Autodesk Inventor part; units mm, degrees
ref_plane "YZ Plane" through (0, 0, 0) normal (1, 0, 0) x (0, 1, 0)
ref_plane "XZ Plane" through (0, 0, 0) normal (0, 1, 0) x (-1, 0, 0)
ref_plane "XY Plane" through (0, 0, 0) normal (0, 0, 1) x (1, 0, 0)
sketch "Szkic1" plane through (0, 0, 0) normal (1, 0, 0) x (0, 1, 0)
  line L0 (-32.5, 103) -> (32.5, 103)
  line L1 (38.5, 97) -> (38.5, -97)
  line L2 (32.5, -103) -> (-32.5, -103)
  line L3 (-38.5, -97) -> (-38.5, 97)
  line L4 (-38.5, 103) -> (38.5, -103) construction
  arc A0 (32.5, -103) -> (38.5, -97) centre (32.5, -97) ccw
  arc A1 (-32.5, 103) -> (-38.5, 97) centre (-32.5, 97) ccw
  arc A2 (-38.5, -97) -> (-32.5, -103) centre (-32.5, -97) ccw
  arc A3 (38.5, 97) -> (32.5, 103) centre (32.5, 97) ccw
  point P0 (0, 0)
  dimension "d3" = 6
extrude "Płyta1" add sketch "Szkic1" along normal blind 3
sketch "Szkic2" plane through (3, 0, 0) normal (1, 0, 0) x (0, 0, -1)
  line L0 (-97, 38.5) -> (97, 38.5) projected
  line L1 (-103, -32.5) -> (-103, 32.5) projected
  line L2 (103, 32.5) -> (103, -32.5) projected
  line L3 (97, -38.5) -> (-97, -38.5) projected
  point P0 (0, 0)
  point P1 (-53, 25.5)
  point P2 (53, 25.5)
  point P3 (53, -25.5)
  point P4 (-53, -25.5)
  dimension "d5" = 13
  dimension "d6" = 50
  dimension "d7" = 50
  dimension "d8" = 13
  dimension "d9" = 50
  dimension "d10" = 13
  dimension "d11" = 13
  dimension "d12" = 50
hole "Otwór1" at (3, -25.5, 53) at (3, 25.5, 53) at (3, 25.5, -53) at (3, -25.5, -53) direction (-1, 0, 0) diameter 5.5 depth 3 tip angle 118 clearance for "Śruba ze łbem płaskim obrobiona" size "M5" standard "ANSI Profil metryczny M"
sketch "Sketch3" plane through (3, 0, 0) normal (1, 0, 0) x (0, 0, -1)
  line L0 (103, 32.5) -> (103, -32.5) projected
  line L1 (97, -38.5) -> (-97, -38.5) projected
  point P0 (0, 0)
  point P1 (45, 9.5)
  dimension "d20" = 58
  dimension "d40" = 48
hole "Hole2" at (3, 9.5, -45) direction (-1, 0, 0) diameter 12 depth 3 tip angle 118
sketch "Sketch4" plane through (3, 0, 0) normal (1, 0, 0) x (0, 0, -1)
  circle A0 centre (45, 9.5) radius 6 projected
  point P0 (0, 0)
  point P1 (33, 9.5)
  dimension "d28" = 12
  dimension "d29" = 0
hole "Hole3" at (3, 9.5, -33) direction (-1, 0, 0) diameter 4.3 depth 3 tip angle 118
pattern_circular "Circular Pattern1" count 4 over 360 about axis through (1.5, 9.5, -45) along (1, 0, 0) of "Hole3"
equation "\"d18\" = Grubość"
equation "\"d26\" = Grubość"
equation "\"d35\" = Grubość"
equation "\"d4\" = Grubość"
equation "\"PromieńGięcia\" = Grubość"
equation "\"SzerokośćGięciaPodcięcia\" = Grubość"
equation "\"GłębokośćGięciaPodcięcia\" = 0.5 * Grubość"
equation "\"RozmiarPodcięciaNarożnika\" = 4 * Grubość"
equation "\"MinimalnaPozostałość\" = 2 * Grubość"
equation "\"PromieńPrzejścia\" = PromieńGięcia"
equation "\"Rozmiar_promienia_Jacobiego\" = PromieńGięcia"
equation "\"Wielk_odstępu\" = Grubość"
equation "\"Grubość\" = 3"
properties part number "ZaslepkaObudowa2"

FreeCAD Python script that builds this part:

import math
import FreeCAD as App
import Part
import Sketcher
from FreeCAD import Vector

doc = App.newDocument("Part")
body = doc.addObject("PartDesign::Body", "Body")

sketch1 = body.newObject("Sketcher::SketchObject", "Sketch")
sketch1.AttachmentSupport = (doc.getObject("YZ_Plane"), [""])
sketch1.MapMode = "FlatFace"
sketch1.addGeometry([
    Part.LineSegment(Vector(32, 103, 0), Vector(-32, 103, 0)),
    Part.ArcOfCircle(Part.Circle(Vector(-32, 97, 0), Vector(0, 0, 1), 6), math.radians(90), math.radians(180)),
    Part.LineSegment(Vector(-38, 97, 0), Vector(-38, -97, 0)),
    Part.ArcOfCircle(Part.Circle(Vector(-32, -97, 0), Vector(0, 0, 1), 6), math.radians(180), math.radians(270)),
    Part.LineSegment(Vector(-32, -103, 0), Vector(32, -103, 0)),
    Part.ArcOfCircle(Part.Circle(Vector(32, -97, 0), Vector(0, 0, 1), 6), math.radians(-90), math.radians(0)),
    Part.LineSegment(Vector(38, -97, 0), Vector(38, 97, 0)),
    Part.ArcOfCircle(Part.Circle(Vector(32, 97, 0), Vector(0, 0, 1), 6), math.radians(0), math.radians(90)),
], False)
sketch1.addConstraint([
    Sketcher.Constraint("Tangent", 0, 2, 1, 1),
    Sketcher.Constraint("Tangent", 1, 2, 2, 1),
    Sketcher.Constraint("Tangent", 2, 2, 3, 1),
    Sketcher.Constraint("Tangent", 3, 2, 4, 1),
    Sketcher.Constraint("Tangent", 4, 2, 5, 1),
    Sketcher.Constraint("Tangent", 5, 2, 6, 1),
    Sketcher.Constraint("Tangent", 6, 2, 7, 1),
    Sketcher.Constraint("Tangent", 7, 2, 0, 1),
    Sketcher.Constraint("Horizontal", 0),
    Sketcher.Constraint("Vertical", 2),
    Sketcher.Constraint("Horizontal", 4),
    Sketcher.Constraint("Vertical", 6),
    Sketcher.Constraint("Equal", 1, 3),
    Sketcher.Constraint("Equal", 3, 5),
    Sketcher.Constraint("Equal", 5, 7),
    Sketcher.Constraint("Symmetric", 1, 3, 5, 3, -1, 1),
    Sketcher.Constraint("Radius", 1, 6.0),
    Sketcher.Constraint("DistanceX", 0, 2, 0, 1, 65.0),
    Sketcher.Constraint("DistanceY", 2, 2, 2, 1, 194.0),
])
pad1 = body.newObject("PartDesign::Pad", "Pad")
pad1.Profile = sketch1
pad1.Length = 3

sketch2 = body.newObject("Sketcher::SketchObject", "Sketch001")
sketch2.AttachmentSupport = (doc.getObject("YZ_Plane"), [""])
sketch2.MapMode = "FlatFace"
sketch2.AttachmentOffset = App.Placement(Vector(0, 0, 3), App.Rotation())
sketch2.addGeometry([
    Part.Circle(Vector(-25.5, 53, 0), Vector(0, 0, 1), 2.8),
    Part.Circle(Vector(25.5, 53, 0), Vector(0, 0, 1), 2.8),
    Part.Circle(Vector(25.5, -53, 0), Vector(0, 0, 1), 2.8),
    Part.Circle(Vector(-25.5, -53, 0), Vector(0, 0, 1), 2.8),
], False)
sketch2.addConstraint([
    Sketcher.Constraint("Equal", 0, 1),
    Sketcher.Constraint("Equal", 1, 2),
    Sketcher.Constraint("Equal", 2, 3),
    Sketcher.Constraint("Symmetric", 0, 3, 2, 3, -1, 1),
    Sketcher.Constraint("Symmetric", 1, 3, 3, 3, -1, 1),
    Sketcher.Constraint("Symmetric", 0, 3, 1, 3, -2),
    Sketcher.Constraint("Diameter", 0, 5.5),
    Sketcher.Constraint("DistanceY", -1, 1, 0, 3, 53.0),
    Sketcher.Constraint("DistanceX", 0, 3, 1, 3, 51.0),
])
doc.recompute()
hole = body.newObject("PartDesign::Hole", "Hole")
hole.Profile = sketch2
hole.ThreadType = "None"
hole.Diameter = 5.5
hole.DepthType = "Dimension"
hole.Depth = 3
hole.DrillPoint = "Angled"
hole.DrillPointAngle = 118

sketch3 = body.newObject("Sketcher::SketchObject", "Sketch002")
sketch3.AttachmentSupport = (doc.getObject("YZ_Plane"), [""])
sketch3.MapMode = "FlatFace"
sketch3.AttachmentOffset = App.Placement(Vector(0, 0, 3), App.Rotation())
sketch3.addGeometry(Part.Circle(Vector(10, -45, 0), Vector(0, 0, 1), 6), False)
sketch3.addConstraint([
    Sketcher.Constraint("Diameter", 0, 12.0),
    Sketcher.Constraint("DistanceY", 0, 3, -1, 1, 45.0),
    Sketcher.Constraint("DistanceX", -1, 1, 0, 3, 9.5),
])
doc.recompute()
hole2 = body.newObject("PartDesign::Hole", "Hole001")
hole2.Profile = sketch3
hole2.ThreadType = "None"
hole2.Diameter = 12
hole2.DepthType = "Dimension"
hole2.Depth = 3
hole2.DrillPoint = "Angled"
hole2.DrillPointAngle = 118

sketch4 = body.newObject("Sketcher::SketchObject", "Sketch003")
sketch4.AttachmentSupport = (doc.getObject("YZ_Plane"), [""])
sketch4.MapMode = "FlatFace"
sketch4.AttachmentOffset = App.Placement(Vector(0, 0, 3), App.Rotation())
sketch4.addGeometry(Part.Circle(Vector(9.5, -33, 0), Vector(0, 0, 1), 2.1), False)
sketch4.addConstraint([
    Sketcher.Constraint("Diameter", 0, 4.3),
    Sketcher.Constraint("DistanceY", 0, 3, -1, 1, 33.0),
    Sketcher.Constraint("DistanceX", -1, 1, 0, 3, 9.5),
])
doc.recompute()
hole3 = body.newObject("PartDesign::Hole", "Hole002")
hole3.Profile = sketch4
hole3.ThreadType = "None"
hole3.Diameter = 4.3
hole3.DepthType = "Dimension"
hole3.Depth = 3
hole3.DrillPoint = "Angled"
hole3.DrillPointAngle = 118
doc.recompute()

datumline = body.newObject("PartDesign::Line", "DatumLine")
datumline.Placement = App.Placement(Vector(0, 9.5, -45), App.Rotation(Vector(0, 0, 1), Vector(1, 0, 0)))
polarpattern = body.newObject("PartDesign::PolarPattern", "PolarPattern")
polarpattern.Originals = [hole3]
polarpattern.Axis = (datumline, [""])
polarpattern.Angle = 360
polarpattern.Occurrences = 4
body.Tip = polarpattern

doc.recompute()
